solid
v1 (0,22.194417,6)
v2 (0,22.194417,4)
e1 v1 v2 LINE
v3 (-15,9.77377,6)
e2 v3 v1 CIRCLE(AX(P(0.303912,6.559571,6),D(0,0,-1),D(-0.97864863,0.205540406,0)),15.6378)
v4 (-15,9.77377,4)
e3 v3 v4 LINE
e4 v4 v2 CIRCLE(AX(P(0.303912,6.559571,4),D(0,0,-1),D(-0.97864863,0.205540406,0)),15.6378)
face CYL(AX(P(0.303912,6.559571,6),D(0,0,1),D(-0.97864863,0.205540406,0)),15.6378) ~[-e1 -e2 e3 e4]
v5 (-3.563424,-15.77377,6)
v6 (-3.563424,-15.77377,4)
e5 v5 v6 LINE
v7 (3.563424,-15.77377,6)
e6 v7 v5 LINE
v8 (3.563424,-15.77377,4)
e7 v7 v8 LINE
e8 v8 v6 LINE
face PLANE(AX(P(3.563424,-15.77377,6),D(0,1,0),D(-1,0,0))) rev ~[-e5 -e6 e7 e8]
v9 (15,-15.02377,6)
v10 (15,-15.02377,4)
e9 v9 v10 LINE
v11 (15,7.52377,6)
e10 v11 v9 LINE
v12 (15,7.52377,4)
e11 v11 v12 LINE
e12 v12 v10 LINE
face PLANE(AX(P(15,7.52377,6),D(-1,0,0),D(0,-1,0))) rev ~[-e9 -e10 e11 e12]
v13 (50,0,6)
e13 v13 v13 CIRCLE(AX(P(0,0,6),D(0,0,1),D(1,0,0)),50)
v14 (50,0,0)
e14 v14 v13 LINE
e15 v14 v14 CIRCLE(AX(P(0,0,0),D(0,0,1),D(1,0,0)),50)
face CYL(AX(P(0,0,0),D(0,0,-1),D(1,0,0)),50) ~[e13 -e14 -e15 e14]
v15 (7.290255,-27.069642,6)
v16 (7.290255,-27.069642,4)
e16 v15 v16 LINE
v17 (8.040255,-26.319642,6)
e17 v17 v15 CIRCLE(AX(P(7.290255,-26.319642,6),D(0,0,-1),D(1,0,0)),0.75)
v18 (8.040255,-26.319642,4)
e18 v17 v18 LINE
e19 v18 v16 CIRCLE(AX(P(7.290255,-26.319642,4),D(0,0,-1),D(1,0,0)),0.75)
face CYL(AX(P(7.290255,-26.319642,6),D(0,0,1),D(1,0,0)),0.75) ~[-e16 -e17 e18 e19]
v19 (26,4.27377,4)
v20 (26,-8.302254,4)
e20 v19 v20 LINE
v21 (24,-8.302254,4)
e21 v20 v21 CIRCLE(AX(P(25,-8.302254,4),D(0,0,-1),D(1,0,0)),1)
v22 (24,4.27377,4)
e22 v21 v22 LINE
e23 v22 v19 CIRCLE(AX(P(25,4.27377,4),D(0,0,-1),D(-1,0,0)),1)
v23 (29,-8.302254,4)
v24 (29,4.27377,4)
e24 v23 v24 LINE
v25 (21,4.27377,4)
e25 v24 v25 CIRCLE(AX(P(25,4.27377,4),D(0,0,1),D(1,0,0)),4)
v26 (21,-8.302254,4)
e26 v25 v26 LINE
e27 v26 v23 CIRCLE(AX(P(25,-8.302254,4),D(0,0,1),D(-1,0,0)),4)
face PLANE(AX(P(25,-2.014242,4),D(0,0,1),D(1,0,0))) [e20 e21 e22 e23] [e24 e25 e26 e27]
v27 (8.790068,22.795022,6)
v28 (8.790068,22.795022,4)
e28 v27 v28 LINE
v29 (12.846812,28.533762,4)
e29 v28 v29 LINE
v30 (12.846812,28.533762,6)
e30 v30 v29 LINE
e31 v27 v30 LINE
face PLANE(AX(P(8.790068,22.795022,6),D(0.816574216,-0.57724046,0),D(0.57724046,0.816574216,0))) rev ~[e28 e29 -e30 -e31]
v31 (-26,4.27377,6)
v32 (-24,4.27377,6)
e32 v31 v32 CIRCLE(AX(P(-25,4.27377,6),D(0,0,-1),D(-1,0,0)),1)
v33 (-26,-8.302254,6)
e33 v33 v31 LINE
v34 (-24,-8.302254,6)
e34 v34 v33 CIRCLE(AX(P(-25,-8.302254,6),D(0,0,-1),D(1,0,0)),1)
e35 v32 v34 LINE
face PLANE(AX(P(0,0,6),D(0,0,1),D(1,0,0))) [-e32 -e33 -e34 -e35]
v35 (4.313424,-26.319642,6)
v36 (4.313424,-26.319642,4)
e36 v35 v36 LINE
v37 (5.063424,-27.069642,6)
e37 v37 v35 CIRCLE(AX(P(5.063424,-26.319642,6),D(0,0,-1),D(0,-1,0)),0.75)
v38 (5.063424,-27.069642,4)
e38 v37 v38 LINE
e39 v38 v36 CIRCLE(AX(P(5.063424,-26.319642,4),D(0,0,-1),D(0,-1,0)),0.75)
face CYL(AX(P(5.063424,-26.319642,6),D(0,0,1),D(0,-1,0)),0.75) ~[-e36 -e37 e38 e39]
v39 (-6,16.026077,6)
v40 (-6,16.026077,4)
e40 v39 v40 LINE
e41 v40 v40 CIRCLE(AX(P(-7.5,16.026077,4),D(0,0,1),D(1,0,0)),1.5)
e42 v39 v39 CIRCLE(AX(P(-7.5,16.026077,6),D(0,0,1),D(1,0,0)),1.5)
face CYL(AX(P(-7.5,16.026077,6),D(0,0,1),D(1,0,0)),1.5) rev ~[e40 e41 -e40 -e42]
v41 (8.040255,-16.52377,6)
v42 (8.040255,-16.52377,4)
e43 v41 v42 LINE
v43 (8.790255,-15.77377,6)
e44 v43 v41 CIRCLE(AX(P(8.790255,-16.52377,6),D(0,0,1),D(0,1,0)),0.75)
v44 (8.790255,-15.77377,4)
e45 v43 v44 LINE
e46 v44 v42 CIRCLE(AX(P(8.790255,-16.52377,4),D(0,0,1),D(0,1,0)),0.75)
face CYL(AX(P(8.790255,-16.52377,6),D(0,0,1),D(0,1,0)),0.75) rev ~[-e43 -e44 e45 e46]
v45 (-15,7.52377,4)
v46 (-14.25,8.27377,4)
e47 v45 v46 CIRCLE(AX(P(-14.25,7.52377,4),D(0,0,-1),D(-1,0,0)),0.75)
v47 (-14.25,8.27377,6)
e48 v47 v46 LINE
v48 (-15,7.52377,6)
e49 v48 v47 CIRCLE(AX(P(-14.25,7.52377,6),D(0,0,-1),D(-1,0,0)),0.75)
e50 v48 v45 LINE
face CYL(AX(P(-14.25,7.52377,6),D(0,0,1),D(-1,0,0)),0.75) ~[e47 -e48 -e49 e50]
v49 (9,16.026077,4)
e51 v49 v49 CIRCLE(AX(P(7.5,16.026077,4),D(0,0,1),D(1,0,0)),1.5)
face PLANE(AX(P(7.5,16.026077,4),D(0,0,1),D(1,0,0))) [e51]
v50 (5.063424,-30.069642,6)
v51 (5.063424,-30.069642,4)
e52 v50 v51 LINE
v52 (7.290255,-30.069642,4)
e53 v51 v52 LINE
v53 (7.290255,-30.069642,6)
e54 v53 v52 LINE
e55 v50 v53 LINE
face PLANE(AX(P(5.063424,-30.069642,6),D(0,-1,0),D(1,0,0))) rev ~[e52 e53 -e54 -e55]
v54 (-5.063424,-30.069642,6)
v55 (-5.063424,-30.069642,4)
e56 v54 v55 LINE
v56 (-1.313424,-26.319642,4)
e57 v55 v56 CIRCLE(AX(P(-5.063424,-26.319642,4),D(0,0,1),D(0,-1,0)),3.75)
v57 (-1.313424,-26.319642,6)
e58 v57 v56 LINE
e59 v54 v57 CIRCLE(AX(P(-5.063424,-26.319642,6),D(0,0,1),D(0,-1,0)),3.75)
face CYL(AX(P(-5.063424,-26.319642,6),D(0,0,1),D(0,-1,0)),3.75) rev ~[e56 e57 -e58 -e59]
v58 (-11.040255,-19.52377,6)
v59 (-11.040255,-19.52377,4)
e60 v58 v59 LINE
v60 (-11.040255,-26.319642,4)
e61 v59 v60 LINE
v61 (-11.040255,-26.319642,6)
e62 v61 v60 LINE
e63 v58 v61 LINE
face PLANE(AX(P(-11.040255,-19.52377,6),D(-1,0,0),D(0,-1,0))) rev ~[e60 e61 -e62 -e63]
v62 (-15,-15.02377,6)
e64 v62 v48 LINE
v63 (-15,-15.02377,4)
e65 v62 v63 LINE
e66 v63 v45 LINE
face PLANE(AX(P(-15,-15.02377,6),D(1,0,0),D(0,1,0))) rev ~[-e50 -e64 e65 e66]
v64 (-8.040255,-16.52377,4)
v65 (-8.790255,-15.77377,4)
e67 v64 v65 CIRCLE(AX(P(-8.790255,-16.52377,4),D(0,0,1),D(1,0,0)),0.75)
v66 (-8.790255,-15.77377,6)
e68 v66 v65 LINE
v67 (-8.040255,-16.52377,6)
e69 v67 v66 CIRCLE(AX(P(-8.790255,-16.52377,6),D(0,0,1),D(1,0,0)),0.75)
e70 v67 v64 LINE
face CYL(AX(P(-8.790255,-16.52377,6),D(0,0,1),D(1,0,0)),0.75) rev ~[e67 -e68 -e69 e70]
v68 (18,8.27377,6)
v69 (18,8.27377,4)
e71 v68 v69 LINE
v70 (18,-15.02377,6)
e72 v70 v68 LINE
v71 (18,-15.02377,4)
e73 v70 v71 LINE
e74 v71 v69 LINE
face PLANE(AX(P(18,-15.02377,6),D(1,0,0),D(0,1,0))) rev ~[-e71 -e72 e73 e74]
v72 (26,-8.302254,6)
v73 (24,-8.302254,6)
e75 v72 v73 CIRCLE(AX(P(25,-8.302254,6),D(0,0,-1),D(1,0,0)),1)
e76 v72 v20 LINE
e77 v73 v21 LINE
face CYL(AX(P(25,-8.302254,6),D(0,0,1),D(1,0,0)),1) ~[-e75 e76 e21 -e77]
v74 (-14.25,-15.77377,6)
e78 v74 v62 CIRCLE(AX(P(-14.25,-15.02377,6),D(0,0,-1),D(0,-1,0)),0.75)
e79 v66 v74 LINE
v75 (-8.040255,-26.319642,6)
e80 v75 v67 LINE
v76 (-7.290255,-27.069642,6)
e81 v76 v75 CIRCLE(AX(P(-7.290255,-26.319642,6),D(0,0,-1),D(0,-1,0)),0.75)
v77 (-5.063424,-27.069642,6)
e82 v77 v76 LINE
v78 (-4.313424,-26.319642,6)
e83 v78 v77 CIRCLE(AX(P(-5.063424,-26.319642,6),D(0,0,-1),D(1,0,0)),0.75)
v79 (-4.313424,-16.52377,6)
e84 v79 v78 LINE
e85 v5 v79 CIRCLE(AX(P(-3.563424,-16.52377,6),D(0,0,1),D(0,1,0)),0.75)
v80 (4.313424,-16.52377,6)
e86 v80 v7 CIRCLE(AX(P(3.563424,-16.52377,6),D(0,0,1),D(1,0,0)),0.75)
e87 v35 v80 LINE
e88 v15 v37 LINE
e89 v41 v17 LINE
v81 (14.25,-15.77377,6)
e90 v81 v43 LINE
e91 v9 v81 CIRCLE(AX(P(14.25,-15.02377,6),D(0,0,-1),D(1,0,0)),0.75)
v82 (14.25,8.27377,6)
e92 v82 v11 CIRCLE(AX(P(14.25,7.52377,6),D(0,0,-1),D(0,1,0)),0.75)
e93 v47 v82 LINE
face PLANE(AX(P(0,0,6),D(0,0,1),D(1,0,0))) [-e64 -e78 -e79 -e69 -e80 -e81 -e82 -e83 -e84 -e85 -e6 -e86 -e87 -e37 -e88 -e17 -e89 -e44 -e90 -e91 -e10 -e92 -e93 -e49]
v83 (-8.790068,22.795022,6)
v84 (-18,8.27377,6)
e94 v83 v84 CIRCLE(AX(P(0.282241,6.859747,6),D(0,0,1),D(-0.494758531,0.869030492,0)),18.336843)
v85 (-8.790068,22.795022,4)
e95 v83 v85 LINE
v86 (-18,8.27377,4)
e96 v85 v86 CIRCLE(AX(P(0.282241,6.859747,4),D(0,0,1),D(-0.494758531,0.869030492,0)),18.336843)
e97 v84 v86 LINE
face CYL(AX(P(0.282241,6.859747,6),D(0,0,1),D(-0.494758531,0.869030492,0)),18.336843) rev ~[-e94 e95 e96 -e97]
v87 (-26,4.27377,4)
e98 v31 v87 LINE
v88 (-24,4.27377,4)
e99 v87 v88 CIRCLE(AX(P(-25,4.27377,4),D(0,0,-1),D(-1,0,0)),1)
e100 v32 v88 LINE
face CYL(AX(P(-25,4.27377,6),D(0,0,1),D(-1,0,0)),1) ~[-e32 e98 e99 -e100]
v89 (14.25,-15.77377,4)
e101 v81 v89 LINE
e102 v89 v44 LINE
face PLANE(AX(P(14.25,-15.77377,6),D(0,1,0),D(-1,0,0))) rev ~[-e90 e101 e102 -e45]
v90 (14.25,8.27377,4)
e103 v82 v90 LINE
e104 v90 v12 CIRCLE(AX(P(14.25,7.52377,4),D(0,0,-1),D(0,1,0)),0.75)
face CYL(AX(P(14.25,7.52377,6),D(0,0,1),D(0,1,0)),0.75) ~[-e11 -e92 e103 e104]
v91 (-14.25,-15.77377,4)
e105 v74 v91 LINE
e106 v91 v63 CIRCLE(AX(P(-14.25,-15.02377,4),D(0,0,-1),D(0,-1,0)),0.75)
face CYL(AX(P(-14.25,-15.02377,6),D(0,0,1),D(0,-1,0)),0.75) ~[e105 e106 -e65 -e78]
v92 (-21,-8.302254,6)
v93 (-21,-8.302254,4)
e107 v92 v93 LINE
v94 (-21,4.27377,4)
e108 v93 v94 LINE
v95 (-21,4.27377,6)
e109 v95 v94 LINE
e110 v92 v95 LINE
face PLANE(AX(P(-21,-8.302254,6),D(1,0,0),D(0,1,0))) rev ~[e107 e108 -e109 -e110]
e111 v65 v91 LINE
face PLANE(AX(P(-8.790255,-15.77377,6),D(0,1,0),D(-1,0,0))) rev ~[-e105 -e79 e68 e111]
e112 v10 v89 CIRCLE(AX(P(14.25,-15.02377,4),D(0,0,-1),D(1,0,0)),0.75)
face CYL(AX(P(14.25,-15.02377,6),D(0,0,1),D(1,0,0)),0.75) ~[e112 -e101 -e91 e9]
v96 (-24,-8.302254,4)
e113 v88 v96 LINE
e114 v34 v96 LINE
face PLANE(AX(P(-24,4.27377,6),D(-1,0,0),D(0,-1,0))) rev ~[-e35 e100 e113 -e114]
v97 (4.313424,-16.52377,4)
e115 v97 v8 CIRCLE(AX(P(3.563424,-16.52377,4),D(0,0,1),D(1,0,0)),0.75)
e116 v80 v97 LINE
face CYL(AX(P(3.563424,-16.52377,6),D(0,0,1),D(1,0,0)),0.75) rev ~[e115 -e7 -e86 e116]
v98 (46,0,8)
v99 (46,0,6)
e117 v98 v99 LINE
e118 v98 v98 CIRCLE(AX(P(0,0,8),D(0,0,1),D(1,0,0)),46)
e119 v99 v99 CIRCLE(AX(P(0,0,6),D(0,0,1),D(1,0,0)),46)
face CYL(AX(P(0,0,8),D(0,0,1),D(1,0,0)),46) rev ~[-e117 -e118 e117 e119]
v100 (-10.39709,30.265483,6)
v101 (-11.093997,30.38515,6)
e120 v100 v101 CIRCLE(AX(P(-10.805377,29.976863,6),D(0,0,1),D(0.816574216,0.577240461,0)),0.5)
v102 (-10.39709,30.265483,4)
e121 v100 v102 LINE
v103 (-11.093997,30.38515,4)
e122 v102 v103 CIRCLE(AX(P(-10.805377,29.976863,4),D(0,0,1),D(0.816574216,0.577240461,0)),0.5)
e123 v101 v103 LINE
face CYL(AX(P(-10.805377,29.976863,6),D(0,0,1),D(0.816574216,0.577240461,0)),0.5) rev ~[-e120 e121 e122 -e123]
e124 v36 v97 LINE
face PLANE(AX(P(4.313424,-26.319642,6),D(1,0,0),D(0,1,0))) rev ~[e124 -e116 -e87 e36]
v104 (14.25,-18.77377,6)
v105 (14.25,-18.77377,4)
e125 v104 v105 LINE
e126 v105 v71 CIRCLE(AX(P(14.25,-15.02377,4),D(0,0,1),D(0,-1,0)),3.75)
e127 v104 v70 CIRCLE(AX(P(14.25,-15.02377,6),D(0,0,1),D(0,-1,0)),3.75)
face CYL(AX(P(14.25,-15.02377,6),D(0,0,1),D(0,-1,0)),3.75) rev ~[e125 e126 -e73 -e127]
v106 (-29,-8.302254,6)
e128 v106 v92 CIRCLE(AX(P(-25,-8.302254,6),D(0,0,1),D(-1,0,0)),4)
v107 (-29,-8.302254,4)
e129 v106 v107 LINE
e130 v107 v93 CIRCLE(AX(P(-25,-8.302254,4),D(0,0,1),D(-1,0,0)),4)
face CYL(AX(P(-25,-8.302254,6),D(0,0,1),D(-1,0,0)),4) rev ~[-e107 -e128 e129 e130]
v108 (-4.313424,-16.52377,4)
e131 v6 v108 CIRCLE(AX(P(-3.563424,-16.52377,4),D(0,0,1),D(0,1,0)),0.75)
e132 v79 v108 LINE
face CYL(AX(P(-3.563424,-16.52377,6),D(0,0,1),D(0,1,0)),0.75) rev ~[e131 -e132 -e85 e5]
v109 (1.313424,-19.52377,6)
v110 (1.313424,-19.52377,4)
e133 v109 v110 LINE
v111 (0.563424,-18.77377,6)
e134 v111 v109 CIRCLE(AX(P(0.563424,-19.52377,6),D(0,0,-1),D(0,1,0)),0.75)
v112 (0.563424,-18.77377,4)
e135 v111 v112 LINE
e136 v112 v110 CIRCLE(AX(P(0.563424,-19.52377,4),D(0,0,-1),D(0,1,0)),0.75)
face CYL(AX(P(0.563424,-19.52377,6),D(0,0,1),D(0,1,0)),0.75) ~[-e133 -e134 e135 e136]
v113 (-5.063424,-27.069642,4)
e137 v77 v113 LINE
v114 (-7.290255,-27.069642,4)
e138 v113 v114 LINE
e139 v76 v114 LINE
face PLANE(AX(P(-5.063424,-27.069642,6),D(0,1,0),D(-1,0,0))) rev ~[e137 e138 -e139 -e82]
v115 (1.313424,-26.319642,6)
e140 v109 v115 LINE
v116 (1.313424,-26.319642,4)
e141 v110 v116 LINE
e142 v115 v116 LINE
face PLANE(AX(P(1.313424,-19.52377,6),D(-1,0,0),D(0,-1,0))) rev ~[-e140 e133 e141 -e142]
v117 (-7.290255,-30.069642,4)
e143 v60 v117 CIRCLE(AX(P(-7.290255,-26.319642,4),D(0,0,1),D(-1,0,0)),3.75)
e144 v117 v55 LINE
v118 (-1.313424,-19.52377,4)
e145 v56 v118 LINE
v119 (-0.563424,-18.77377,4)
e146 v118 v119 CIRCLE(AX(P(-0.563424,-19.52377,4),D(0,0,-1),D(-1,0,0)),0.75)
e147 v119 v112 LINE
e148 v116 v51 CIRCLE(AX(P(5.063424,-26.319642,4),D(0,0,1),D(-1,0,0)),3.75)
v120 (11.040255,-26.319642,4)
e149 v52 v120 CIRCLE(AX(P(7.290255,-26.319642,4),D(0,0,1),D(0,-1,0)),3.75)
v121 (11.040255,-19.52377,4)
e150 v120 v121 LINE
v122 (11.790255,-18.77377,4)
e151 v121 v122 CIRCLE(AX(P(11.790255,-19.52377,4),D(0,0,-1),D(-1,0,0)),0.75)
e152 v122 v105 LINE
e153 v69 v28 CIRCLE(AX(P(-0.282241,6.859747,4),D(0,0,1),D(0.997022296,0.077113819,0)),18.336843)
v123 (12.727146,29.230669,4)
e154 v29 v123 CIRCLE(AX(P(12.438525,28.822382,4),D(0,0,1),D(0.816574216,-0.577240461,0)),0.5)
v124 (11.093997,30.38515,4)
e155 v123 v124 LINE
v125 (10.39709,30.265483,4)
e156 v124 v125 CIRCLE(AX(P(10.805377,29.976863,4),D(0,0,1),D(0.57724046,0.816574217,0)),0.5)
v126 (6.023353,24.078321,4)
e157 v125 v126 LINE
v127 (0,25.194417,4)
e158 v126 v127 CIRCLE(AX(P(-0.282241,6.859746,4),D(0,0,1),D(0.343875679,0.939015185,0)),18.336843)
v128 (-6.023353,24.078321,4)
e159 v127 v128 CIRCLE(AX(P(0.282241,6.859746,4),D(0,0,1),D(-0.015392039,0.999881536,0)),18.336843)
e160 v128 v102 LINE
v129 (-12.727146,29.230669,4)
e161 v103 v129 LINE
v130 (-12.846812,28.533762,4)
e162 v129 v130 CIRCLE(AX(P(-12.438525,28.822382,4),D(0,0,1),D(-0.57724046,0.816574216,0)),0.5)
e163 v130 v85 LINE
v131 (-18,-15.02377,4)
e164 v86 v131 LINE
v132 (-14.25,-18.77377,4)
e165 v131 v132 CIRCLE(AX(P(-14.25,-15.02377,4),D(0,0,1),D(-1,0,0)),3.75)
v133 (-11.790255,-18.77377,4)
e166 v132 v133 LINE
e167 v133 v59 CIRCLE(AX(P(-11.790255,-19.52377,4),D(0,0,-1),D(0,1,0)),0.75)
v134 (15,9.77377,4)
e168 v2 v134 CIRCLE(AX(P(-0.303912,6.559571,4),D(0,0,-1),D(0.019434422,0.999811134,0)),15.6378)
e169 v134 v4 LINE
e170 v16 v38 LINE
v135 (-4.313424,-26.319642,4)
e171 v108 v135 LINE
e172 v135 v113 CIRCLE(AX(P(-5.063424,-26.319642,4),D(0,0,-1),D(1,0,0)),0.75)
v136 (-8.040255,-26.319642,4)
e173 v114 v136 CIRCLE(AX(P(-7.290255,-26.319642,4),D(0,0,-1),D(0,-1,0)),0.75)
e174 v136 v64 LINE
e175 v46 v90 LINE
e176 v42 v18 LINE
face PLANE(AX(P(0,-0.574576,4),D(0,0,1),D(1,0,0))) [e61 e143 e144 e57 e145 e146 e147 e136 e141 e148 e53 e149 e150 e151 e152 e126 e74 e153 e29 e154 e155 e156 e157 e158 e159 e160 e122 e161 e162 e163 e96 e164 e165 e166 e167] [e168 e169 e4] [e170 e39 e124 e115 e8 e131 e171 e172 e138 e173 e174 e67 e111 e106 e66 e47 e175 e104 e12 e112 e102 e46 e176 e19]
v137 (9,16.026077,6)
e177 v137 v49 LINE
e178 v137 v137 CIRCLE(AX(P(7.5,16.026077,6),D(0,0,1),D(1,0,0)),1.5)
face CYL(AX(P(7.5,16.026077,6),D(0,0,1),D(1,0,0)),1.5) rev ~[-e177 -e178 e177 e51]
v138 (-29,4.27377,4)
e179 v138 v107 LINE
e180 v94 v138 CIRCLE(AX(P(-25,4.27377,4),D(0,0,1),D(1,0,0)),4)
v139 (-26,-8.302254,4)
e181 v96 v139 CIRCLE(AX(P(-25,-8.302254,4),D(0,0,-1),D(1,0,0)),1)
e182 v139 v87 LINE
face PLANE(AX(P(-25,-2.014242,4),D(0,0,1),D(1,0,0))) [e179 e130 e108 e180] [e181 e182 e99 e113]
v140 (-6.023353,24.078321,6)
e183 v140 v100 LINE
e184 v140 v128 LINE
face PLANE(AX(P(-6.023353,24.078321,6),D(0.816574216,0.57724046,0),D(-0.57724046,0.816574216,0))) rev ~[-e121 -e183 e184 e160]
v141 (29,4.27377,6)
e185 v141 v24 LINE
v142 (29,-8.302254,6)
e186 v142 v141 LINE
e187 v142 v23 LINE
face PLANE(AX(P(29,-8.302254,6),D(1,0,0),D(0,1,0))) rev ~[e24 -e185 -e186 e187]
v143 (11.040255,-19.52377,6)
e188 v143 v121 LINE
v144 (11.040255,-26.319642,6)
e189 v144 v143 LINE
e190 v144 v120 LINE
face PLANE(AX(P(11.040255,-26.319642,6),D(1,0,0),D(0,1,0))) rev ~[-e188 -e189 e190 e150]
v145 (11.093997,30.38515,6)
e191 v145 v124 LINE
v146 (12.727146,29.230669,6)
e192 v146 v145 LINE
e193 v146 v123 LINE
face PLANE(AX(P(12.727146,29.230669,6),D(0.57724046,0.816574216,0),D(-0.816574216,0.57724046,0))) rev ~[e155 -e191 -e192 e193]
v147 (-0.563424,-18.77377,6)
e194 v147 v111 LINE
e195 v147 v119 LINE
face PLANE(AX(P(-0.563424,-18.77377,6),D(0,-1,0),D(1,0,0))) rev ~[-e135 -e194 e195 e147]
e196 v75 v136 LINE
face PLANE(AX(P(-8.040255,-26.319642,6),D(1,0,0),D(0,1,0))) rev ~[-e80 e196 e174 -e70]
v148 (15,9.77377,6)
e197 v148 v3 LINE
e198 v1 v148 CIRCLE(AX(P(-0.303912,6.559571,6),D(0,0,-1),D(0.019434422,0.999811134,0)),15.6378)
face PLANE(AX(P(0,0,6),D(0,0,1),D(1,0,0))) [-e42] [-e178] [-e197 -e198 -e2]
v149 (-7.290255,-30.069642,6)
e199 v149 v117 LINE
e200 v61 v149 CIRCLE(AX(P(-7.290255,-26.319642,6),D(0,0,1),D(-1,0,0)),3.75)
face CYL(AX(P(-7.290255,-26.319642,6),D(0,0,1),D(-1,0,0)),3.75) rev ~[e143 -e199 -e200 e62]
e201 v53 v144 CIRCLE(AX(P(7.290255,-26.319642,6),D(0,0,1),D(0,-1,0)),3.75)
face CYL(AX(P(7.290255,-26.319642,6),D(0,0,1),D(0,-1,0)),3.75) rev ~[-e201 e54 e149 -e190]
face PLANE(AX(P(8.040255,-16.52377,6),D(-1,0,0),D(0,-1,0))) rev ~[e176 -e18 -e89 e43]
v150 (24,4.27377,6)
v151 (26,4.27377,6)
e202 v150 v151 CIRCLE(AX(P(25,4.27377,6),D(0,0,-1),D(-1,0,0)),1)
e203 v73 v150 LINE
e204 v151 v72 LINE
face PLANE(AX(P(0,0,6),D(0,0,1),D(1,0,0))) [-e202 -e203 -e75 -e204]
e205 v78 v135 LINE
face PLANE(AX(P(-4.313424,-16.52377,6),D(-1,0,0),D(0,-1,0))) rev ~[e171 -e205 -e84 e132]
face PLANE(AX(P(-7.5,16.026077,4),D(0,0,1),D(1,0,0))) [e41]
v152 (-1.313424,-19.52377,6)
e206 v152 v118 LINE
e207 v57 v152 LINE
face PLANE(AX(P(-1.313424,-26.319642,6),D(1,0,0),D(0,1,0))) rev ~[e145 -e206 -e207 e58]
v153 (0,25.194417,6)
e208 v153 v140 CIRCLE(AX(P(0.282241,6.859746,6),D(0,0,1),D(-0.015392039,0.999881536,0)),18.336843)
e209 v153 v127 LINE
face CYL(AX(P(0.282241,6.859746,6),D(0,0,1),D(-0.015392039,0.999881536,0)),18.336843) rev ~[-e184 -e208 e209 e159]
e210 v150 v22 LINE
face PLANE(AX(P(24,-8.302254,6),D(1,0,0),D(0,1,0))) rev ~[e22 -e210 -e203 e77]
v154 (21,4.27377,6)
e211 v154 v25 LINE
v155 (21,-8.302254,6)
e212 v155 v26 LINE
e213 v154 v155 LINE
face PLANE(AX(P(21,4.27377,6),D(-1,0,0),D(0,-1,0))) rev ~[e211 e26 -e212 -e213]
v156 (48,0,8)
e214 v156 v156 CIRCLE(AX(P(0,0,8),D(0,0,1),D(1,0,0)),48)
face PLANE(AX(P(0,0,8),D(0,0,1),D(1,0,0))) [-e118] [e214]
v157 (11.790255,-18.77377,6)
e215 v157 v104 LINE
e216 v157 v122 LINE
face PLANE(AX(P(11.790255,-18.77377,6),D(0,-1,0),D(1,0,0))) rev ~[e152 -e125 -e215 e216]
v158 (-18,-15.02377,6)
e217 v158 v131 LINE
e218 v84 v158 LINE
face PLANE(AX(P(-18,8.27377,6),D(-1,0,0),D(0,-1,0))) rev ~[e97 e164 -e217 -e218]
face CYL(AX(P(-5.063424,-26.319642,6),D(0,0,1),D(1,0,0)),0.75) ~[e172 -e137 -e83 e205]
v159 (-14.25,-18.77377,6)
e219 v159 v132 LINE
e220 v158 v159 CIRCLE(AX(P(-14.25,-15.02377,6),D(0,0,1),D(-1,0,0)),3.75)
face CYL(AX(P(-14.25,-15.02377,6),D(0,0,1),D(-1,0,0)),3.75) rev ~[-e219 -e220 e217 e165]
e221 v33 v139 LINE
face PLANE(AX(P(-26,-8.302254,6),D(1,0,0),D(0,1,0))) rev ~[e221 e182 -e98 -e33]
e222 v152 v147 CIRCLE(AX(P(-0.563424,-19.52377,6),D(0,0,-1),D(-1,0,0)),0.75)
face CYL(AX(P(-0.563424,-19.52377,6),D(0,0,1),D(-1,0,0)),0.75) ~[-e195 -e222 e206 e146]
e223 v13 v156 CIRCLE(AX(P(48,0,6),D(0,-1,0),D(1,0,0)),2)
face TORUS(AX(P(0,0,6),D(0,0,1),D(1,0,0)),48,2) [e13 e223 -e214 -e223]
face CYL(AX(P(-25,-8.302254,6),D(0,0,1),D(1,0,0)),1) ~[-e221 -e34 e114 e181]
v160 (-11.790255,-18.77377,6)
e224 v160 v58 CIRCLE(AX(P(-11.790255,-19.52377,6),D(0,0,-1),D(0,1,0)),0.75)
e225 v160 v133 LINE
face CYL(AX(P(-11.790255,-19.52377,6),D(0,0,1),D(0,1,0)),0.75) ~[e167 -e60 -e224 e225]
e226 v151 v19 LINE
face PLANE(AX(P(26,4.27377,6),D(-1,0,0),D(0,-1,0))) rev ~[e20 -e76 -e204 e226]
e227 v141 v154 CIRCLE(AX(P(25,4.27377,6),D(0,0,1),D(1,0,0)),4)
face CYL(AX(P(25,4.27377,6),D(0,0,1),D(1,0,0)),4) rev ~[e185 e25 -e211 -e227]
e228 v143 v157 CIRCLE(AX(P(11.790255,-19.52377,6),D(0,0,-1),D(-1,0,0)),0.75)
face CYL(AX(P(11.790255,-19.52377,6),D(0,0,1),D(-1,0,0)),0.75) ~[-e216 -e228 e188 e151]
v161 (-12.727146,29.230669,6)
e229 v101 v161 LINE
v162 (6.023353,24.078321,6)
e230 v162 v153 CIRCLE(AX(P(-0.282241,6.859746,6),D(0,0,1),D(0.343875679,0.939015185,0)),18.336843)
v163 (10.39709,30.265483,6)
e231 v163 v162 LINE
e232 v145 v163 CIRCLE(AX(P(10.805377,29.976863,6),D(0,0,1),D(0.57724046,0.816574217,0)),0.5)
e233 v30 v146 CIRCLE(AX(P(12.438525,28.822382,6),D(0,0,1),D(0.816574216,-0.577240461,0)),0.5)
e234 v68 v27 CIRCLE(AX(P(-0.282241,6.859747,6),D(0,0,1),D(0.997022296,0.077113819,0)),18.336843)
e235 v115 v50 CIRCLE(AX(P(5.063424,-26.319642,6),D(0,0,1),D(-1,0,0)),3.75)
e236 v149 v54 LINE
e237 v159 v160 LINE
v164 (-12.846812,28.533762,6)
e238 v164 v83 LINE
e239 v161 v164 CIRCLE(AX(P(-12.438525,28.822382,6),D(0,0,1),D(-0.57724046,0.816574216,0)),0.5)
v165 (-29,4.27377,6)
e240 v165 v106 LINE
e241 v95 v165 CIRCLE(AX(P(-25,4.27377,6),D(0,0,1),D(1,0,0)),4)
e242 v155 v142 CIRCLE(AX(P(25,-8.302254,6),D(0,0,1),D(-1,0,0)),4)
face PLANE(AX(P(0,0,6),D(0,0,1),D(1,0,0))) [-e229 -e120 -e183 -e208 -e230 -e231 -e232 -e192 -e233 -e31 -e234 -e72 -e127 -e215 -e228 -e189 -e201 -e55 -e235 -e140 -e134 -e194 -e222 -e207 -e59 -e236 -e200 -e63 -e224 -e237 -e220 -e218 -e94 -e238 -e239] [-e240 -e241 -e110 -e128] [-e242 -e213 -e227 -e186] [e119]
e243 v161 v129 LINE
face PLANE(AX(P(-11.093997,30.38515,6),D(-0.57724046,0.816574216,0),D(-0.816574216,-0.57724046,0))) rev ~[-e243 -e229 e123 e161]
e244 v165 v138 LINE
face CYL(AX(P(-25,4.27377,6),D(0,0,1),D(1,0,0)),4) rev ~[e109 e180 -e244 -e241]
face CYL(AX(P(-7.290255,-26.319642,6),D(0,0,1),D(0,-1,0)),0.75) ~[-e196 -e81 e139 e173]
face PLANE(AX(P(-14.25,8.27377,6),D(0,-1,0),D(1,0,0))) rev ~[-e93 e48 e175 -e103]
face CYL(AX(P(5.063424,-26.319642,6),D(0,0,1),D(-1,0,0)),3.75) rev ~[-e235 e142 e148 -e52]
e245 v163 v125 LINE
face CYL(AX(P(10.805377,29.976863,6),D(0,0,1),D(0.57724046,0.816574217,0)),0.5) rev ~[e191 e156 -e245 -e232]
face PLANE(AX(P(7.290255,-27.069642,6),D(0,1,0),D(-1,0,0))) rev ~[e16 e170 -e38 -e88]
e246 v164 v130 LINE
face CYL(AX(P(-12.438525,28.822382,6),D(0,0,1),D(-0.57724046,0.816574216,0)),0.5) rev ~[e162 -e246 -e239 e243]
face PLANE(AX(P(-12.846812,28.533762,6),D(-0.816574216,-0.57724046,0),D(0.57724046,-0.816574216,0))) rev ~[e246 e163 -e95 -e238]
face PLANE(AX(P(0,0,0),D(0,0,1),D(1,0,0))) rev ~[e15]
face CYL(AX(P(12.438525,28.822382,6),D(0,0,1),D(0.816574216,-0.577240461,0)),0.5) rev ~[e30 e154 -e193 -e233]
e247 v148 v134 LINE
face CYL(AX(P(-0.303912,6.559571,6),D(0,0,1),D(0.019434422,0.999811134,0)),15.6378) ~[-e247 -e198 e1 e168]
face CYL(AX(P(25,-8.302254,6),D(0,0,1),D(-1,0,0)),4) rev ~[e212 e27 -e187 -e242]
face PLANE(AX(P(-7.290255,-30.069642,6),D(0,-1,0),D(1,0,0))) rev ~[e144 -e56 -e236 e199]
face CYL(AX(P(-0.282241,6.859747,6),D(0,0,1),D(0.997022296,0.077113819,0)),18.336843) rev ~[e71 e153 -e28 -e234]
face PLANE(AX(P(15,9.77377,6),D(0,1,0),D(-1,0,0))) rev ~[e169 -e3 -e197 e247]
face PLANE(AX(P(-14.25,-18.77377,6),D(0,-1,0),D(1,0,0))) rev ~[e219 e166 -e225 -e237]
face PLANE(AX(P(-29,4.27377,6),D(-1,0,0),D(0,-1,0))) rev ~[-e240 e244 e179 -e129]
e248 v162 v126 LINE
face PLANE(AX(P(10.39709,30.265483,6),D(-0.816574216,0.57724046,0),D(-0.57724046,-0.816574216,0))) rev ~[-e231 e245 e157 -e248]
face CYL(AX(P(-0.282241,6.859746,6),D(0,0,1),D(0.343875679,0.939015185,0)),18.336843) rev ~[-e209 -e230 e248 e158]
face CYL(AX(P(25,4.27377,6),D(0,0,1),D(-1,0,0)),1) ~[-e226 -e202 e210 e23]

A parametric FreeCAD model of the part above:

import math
import FreeCAD as App
import Part
import Sketcher


def edges_at(feature, points):
    """Names of the edges that pass closest to the given points."""
    edges = feature.Shape.Edges
    near = lambda p: min(range(len(edges)), key=lambda i: edges[i].distToShape(Part.Vertex(*p))[0])
    return sorted({f"Edge{near(p) + 1}" for p in points})

doc = App.newDocument("Part")
body = doc.addObject("PartDesign::Body", "Body")

# Sketch on XY plane
sketch1 = doc.addObject("Sketcher::SketchObject", "Sketch")
body.addObject(sketch1)
sketch1.AttachmentSupport = (doc.XY_Plane, [""])
sketch1.MapMode = "FlatFace"
sketch1.addGeometry(Part.Circle(App.Vector(0, 0, 0), App.Vector(0, 0, 1), 50), False)
sketch1.addConstraint([
    Sketcher.Constraint("Coincident", 0, 3, -1, 1),
    Sketcher.Constraint("Diameter", 0, 100.0),
])
pad1 = doc.addObject("PartDesign::Pad", "Pad")
body.addObject(pad1)
pad1.Profile = sketch1
pad1.Length = 8
doc.recompute()

fillet = doc.addObject("PartDesign::Fillet", "Fillet")
body.addObject(fillet)
fillet.Base = (pad1, edges_at(pad1, [(-50, 0, 8)]))
fillet.Radius = 2

# Sketch on XY plane
sketch2 = doc.addObject("Sketcher::SketchObject", "Sketch001")
body.addObject(sketch2)
sketch2.AttachmentSupport = (doc.XY_Plane, [""])
sketch2.MapMode = "FlatFace"
sketch2.AttachmentOffset = App.Placement(App.Vector(0, 0, 8), App.Rotation())
sketch2.addGeometry(Part.Circle(App.Vector(0, 0, 0), App.Vector(0, 0, 1), 46), False)
sketch2.addConstraint([
    Sketcher.Constraint("Coincident", 0, 3, -1, 1),
    Sketcher.Constraint("Diameter", 0, 92.0),
])
pocket1 = doc.addObject("PartDesign::Pocket", "Pocket")
body.addObject(pocket1)
pocket1.Profile = sketch2
pocket1.Length = 2

# Sketch on XY plane
sketch3 = doc.addObject("Sketcher::SketchObject", "Sketch002")
body.addObject(sketch3)
sketch3.AttachmentSupport = (doc.XY_Plane, [""])
sketch3.MapMode = "FlatFace"
sketch3.AttachmentOffset = App.Placement(App.Vector(0, 0, 6), App.Rotation())
sketch3.addGeometry([
    Part.ArcOfCircle(Part.Circle(App.Vector(-0.6, -19.5, 0), App.Vector(0, 0, 1), 0.8), math.radians(90), math.radians(180)),  # 0
    Part.LineSegment(App.Vector(-0.6, -18.8, 0), App.Vector(0.6, -18.8, 0)),  # 1
    Part.ArcOfCircle(Part.Circle(App.Vector(0.6, -19.5, 0), App.Vector(0, 0, 1), 0.8), math.radians(0), math.radians(90)),  # 2
    Part.LineSegment(App.Vector(1.3, -19.5, 0), App.Vector(1.3, -26.3, 0)),  # 3
    Part.ArcOfCircle(Part.Circle(App.Vector(5.1, -26.3, 0), App.Vector(0, 0, 1), 3.8), math.radians(180), math.radians(270)),  # 4
    Part.LineSegment(App.Vector(5.1, -30.1, 0), App.Vector(7.3, -30.1, 0)),  # 5
    Part.ArcOfCircle(Part.Circle(App.Vector(7.3, -26.3, 0), App.Vector(0, 0, 1), 3.8), math.radians(-90), math.radians(0)),  # 6
    Part.LineSegment(App.Vector(11, -26.3, 0), App.Vector(11, -19.5, 0)),  # 7
    Part.ArcOfCircle(Part.Circle(App.Vector(11.8, -19.5, 0), App.Vector(0, 0, 1), 0.8), math.radians(90), math.radians(180)),  # 8
    Part.LineSegment(App.Vector(11.8, -18.8, 0), App.Vector(14.2, -18.8, 0)),  # 9
    Part.ArcOfCircle(Part.Circle(App.Vector(14.2, -15, 0), App.Vector(0, 0, 1), 3.8), math.radians(-90), math.radians(0)),  # 10
    Part.LineSegment(App.Vector(18, -15, 0), App.Vector(18, 8.3, 0)),  # 11
    Part.ArcOfCircle(Part.Circle(App.Vector(-0.3, 6.9, 0), App.Vector(0, 0, 1), 18.3), math.radians(4), math.radians(60)),  # 12
    Part.LineSegment(App.Vector(8.8, 22.8, 0), App.Vector(12.8, 28.5, 0)),  # 13
    Part.ArcOfCircle(Part.Circle(App.Vector(12.4, 28.8, 0), App.Vector(0, 0, 1), 0.5), math.radians(-35), math.radians(55)),  # 14
    Part.LineSegment(App.Vector(12.7, 29.2, 0), App.Vector(11.1, 30.4, 0)),  # 15
    Part.ArcOfCircle(Part.Circle(App.Vector(10.8, 30, 0), App.Vector(0, 0, 1), 0.5), math.radians(55), math.radians(145)),  # 16
    Part.LineSegment(App.Vector(10.4, 30.3, 0), App.Vector(6, 24.1, 0)),  # 17
    Part.ArcOfCircle(Part.Circle(App.Vector(-0.3, 6.9, 0), App.Vector(0, 0, 1), 18.3), math.radians(69.89), math.radians(89.12)),  # 18
    Part.ArcOfCircle(Part.Circle(App.Vector(0.3, 6.9, 0), App.Vector(0, 0, 1), 18.3), math.radians(90.88), math.radians(110.11)),  # 19
    Part.LineSegment(App.Vector(-6, 24.1, 0), App.Vector(-10.4, 30.3, 0)),  # 20
    Part.ArcOfCircle(Part.Circle(App.Vector(-10.8, 30, 0), App.Vector(0, 0, 1), 0.5), math.radians(35), math.radians(125)),  # 21
    Part.LineSegment(App.Vector(-11.1, 30.4, 0), App.Vector(-12.7, 29.2, 0)),  # 22
    Part.ArcOfCircle(Part.Circle(App.Vector(-12.4, 28.8, 0), App.Vector(0, 0, 1), 0.5), math.radians(125), math.radians(215)),  # 23
    Part.LineSegment(App.Vector(-12.8, 28.5, 0), App.Vector(-8.8, 22.8, 0)),  # 24
    Part.ArcOfCircle(Part.Circle(App.Vector(0.3, 6.9, 0), App.Vector(0, 0, 1), 18.3), math.radians(120), math.radians(176)),  # 25
    Part.LineSegment(App.Vector(-18, 8.3, 0), App.Vector(-18, -15, 0)),  # 26
    Part.ArcOfCircle(Part.Circle(App.Vector(-14.2, -15, 0), App.Vector(0, 0, 1), 3.8), math.radians(180), math.radians(270)),  # 27
    Part.LineSegment(App.Vector(-14.2, -18.8, 0), App.Vector(-11.8, -18.8, 0)),  # 28
    Part.ArcOfCircle(Part.Circle(App.Vector(-11.8, -19.5, 0), App.Vector(0, 0, 1), 0.8), math.radians(0), math.radians(90)),  # 29
    Part.LineSegment(App.Vector(-11, -19.5, 0), App.Vector(-11, -26.3, 0)),  # 30
    Part.ArcOfCircle(Part.Circle(App.Vector(-7.3, -26.3, 0), App.Vector(0, 0, 1), 3.8), math.radians(180), math.radians(270)),  # 31
    Part.LineSegment(App.Vector(-7.3, -30.1, 0), App.Vector(-5.1, -30.1, 0)),  # 32
    Part.ArcOfCircle(Part.Circle(App.Vector(-5.1, -26.3, 0), App.Vector(0, 0, 1), 3.8), math.radians(-90), math.radians(0)),  # 33
    Part.LineSegment(App.Vector(-1.3, -26.3, 0), App.Vector(-1.3, -19.5, 0)),  # 34
    Part.ArcOfCircle(Part.Circle(App.Vector(-14.2, 7.5, 0), App.Vector(0, 0, 1), 0.8), math.radians(90), math.radians(180)),  # 35
    Part.LineSegment(App.Vector(-14.2, 8.3, 0), App.Vector(14.2, 8.3, 0)),  # 36
    Part.ArcOfCircle(Part.Circle(App.Vector(14.2, 7.5, 0), App.Vector(0, 0, 1), 0.8), math.radians(0), math.radians(90)),  # 37
    Part.LineSegment(App.Vector(15, 7.5, 0), App.Vector(15, -15, 0)),  # 38
    Part.ArcOfCircle(Part.Circle(App.Vector(14.2, -15, 0), App.Vector(0, 0, 1), 0.8), math.radians(-90), math.radians(0)),  # 39
    Part.LineSegment(App.Vector(14.2, -15.8, 0), App.Vector(8.8, -15.8, 0)),  # 40
    Part.ArcOfCircle(Part.Circle(App.Vector(8.8, -16.5, 0), App.Vector(0, 0, 1), 0.8), math.radians(90), math.radians(180)),  # 41
    Part.LineSegment(App.Vector(8, -16.5, 0), App.Vector(8, -26.3, 0)),  # 42
    Part.ArcOfCircle(Part.Circle(App.Vector(7.3, -26.3, 0), App.Vector(0, 0, 1), 0.8), math.radians(-90), math.radians(0)),  # 43
    Part.LineSegment(App.Vector(7.3, -27.1, 0), App.Vector(5.1, -27.1, 0)),  # 44
    Part.ArcOfCircle(Part.Circle(App.Vector(5.1, -26.3, 0), App.Vector(0, 0, 1), 0.8), math.radians(180), math.radians(270)),  # 45
    Part.LineSegment(App.Vector(4.3, -26.3, 0), App.Vector(4.3, -16.5, 0)),  # 46
    Part.ArcOfCircle(Part.Circle(App.Vector(3.6, -16.5, 0), App.Vector(0, 0, 1), 0.8), math.radians(0), math.radians(90)),  # 47
    Part.LineSegment(App.Vector(3.6, -15.8, 0), App.Vector(-3.6, -15.8, 0)),  # 48
    Part.ArcOfCircle(Part.Circle(App.Vector(-3.6, -16.5, 0), App.Vector(0, 0, 1), 0.8), math.radians(90), math.radians(180)),  # 49
    Part.LineSegment(App.Vector(-4.3, -16.5, 0), App.Vector(-4.3, -26.3, 0)),  # 50
    Part.ArcOfCircle(Part.Circle(App.Vector(-5.1, -26.3, 0), App.Vector(0, 0, 1), 0.8), math.radians(-90), math.radians(0)),  # 51
    Part.LineSegment(App.Vector(-5.1, -27.1, 0), App.Vector(-7.3, -27.1, 0)),  # 52
    Part.ArcOfCircle(Part.Circle(App.Vector(-7.3, -26.3, 0), App.Vector(0, 0, 1), 0.8), math.radians(180), math.radians(270)),  # 53
    Part.LineSegment(App.Vector(-8, -26.3, 0), App.Vector(-8, -16.5, 0)),  # 54
    Part.ArcOfCircle(Part.Circle(App.Vector(-8.8, -16.5, 0), App.Vector(0, 0, 1), 0.8), math.radians(0), math.radians(90)),  # 55
    Part.LineSegment(App.Vector(-8.8, -15.8, 0), App.Vector(-14.2, -15.8, 0)),  # 56
    Part.ArcOfCircle(Part.Circle(App.Vector(-14.2, -15, 0), App.Vector(0, 0, 1), 0.8), math.radians(180), math.radians(270)),  # 57
    Part.LineSegment(App.Vector(-15, -15, 0), App.Vector(-15, 7.5, 0)),  # 58
    Part.ArcOfCircle(Part.Circle(App.Vector(-0.3, 6.6, 0), App.Vector(0, 0, 1), 15.6), math.radians(12), math.radians(89)),  # 59
    Part.LineSegment(App.Vector(15, 9.8, 0), App.Vector(-15, 9.8, 0)),  # 60
    Part.ArcOfCircle(Part.Circle(App.Vector(0.3, 6.6, 0), App.Vector(0, 0, 1), 15.6), math.radians(91), math.radians(168)),  # 61
    Part.LineSegment(App.Vector(-21, -8.3, 0), App.Vector(-21, 4.3, 0)),  # 62
    Part.ArcOfCircle(Part.Circle(App.Vector(-25, 4.3, 0), App.Vector(0, 0, 1), 4), math.radians(0), math.radians(180)),  # 63
    Part.LineSegment(App.Vector(-29, 4.3, 0), App.Vector(-29, -8.3, 0)),  # 64
    Part.ArcOfCircle(Part.Circle(App.Vector(-25, -8.3, 0), App.Vector(0, 0, 1), 4), math.radians(180), math.radians(360)),  # 65
    Part.ArcOfCircle(Part.Circle(App.Vector(-25, -8.3, 0), App.Vector(0, 0, 1), 1), math.radians(180), math.radians(360)),  # 66
    Part.LineSegment(App.Vector(-26, -8.3, 0), App.Vector(-26, 4.3, 0)),  # 67
    Part.ArcOfCircle(Part.Circle(App.Vector(-25, 4.3, 0), App.Vector(0, 0, 1), 1), math.radians(0), math.radians(180)),  # 68
    Part.LineSegment(App.Vector(-24, 4.3, 0), App.Vector(-24, -8.3, 0)),  # 69
    Part.ArcOfCircle(Part.Circle(App.Vector(25, -8.3, 0), App.Vector(0, 0, 1), 4), math.radians(180), math.radians(360)),  # 70
    Part.LineSegment(App.Vector(29, -8.3, 0), App.Vector(29, 4.3, 0)),  # 71
    Part.ArcOfCircle(Part.Circle(App.Vector(25, 4.3, 0), App.Vector(0, 0, 1), 4), math.radians(0), math.radians(180)),  # 72
    Part.LineSegment(App.Vector(21, 4.3, 0), App.Vector(21, -8.3, 0)),  # 73
    Part.ArcOfCircle(Part.Circle(App.Vector(25, 4.3, 0), App.Vector(0, 0, 1), 1), math.radians(0), math.radians(180)),  # 74
    Part.LineSegment(App.Vector(26, 4.3, 0), App.Vector(26, -8.3, 0)),  # 75
    Part.ArcOfCircle(Part.Circle(App.Vector(25, -8.3, 0), App.Vector(0, 0, 1), 1), math.radians(180), math.radians(360)),  # 76
    Part.LineSegment(App.Vector(24, -8.3, 0), App.Vector(24, 4.3, 0)),  # 77
], False)
sketch3.addConstraint([
    Sketcher.Constraint("Tangent", 0, 1, 1, 1),
    Sketcher.Constraint("Tangent", 1, 2, 2, 2),
    Sketcher.Constraint("Tangent", 2, 1, 3, 1),
    Sketcher.Constraint("Tangent", 3, 2, 4, 1),
    Sketcher.Constraint("Tangent", 4, 2, 5, 1),
    Sketcher.Constraint("Tangent", 5, 2, 6, 1),
    Sketcher.Constraint("Tangent", 6, 2, 7, 1),
    Sketcher.Constraint("Tangent", 7, 2, 8, 2),
    Sketcher.Constraint("Tangent", 8, 1, 9, 1),
    Sketcher.Constraint("Tangent", 9, 2, 10, 1),
    Sketcher.Constraint("Tangent", 10, 2, 11, 1),
    Sketcher.Constraint("Coincident", 11, 2, 12, 1),
    Sketcher.Constraint("Coincident", 12, 2, 13, 1),
    Sketcher.Constraint("Tangent", 13, 2, 14, 1),
    Sketcher.Constraint("Tangent", 14, 2, 15, 1),
    Sketcher.Constraint("Tangent", 15, 2, 16, 1),
    Sketcher.Constraint("Tangent", 16, 2, 17, 1),
    Sketcher.Constraint("Coincident", 17, 2, 18, 1),
    Sketcher.Constraint("Coincident", 18, 2, 19, 1),
    Sketcher.Constraint("Coincident", 19, 2, 20, 1),
    Sketcher.Constraint("Tangent", 20, 2, 21, 1),
    Sketcher.Constraint("Tangent", 21, 2, 22, 1),
    Sketcher.Constraint("Tangent", 22, 2, 23, 1),
    Sketcher.Constraint("Tangent", 23, 2, 24, 1),
    Sketcher.Constraint("Coincident", 24, 2, 25, 1),
    Sketcher.Constraint("Coincident", 25, 2, 26, 1),
    Sketcher.Constraint("Tangent", 26, 2, 27, 1),
    Sketcher.Constraint("Tangent", 27, 2, 28, 1),
    Sketcher.Constraint("Tangent", 28, 2, 29, 2),
    Sketcher.Constraint("Tangent", 29, 1, 30, 1),
    Sketcher.Constraint("Tangent", 30, 2, 31, 1),
    Sketcher.Constraint("Tangent", 31, 2, 32, 1),
    Sketcher.Constraint("Tangent", 32, 2, 33, 1),
    Sketcher.Constraint("Tangent", 33, 2, 34, 1),
    Sketcher.Constraint("Tangent", 34, 2, 0, 2),
    Sketcher.Constraint("Tangent", 35, 1, 36, 1),
    Sketcher.Constraint("Tangent", 36, 2, 37, 2),
    Sketcher.Constraint("Tangent", 37, 1, 38, 1),
    Sketcher.Constraint("Tangent", 38, 2, 39, 2),
    Sketcher.Constraint("Tangent", 39, 1, 40, 1),
    Sketcher.Constraint("Tangent", 40, 2, 41, 1),
    Sketcher.Constraint("Tangent", 41, 2, 42, 1),
    Sketcher.Constraint("Tangent", 42, 2, 43, 2),
    Sketcher.Constraint("Tangent", 43, 1, 44, 1),
    Sketcher.Constraint("Tangent", 44, 2, 45, 2),
    Sketcher.Constraint("Tangent", 45, 1, 46, 1),
    Sketcher.Constraint("Tangent", 46, 2, 47, 1),
    Sketcher.Constraint("Tangent", 47, 2, 48, 1),
    Sketcher.Constraint("Tangent", 48, 2, 49, 1),
    Sketcher.Constraint("Tangent", 49, 2, 50, 1),
    Sketcher.Constraint("Tangent", 50, 2, 51, 2),
    Sketcher.Constraint("Tangent", 51, 1, 52, 1),
    Sketcher.Constraint("Tangent", 52, 2, 53, 2),
    Sketcher.Constraint("Tangent", 53, 1, 54, 1),
    Sketcher.Constraint("Tangent", 54, 2, 55, 1),
    Sketcher.Constraint("Tangent", 55, 2, 56, 1),
    Sketcher.Constraint("Tangent", 56, 2, 57, 2),
    Sketcher.Constraint("Tangent", 57, 1, 58, 1),
    Sketcher.Constraint("Tangent", 58, 2, 35, 2),
    Sketcher.Constraint("Coincident", 59, 1, 60, 1),
    Sketcher.Constraint("Coincident", 60, 2, 61, 2),
    Sketcher.Constraint("Coincident", 61, 1, 59, 2),
    Sketcher.Constraint("Tangent", 62, 2, 63, 1),
    Sketcher.Constraint("Tangent", 63, 2, 64, 1),
    Sketcher.Constraint("Tangent", 64, 2, 65, 1),
    Sketcher.Constraint("Tangent", 65, 2, 62, 1),
    Sketcher.Constraint("Tangent", 66, 1, 67, 1),
    Sketcher.Constraint("Tangent", 67, 2, 68, 2),
    Sketcher.Constraint("Tangent", 68, 1, 69, 1),
    Sketcher.Constraint("Tangent", 69, 2, 66, 2),
    Sketcher.Constraint("Tangent", 70, 2, 71, 1),
    Sketcher.Constraint("Tangent", 71, 2, 72, 1),
    Sketcher.Constraint("Tangent", 72, 2, 73, 1),
    Sketcher.Constraint("Tangent", 73, 2, 70, 1),
    Sketcher.Constraint("Tangent", 74, 1, 75, 1),
    Sketcher.Constraint("Tangent", 75, 2, 76, 2),
    Sketcher.Constraint("Tangent", 76, 1, 77, 1),
    Sketcher.Constraint("Tangent", 77, 2, 74, 2),
    Sketcher.Constraint("Horizontal", 1),
    Sketcher.Constraint("Vertical", 3),
    Sketcher.Constraint("Horizontal", 5),
    Sketcher.Constraint("Vertical", 7),
    Sketcher.Constraint("Horizontal", 9),
    Sketcher.Constraint("Vertical", 11),
    Sketcher.Constraint("Vertical", 26),
    Sketcher.Constraint("Horizontal", 28),
    Sketcher.Constraint("Vertical", 30),
    Sketcher.Constraint("Horizontal", 32),
    Sketcher.Constraint("Vertical", 34),
    Sketcher.Constraint("Horizontal", 36),
    Sketcher.Constraint("Vertical", 38),
    Sketcher.Constraint("Horizontal", 40),
    Sketcher.Constraint("Vertical", 42),
    Sketcher.Constraint("Horizontal", 44),
    Sketcher.Constraint("Vertical", 46),
    Sketcher.Constraint("Horizontal", 48),
    Sketcher.Constraint("Vertical", 50),
    Sketcher.Constraint("Horizontal", 52),
    Sketcher.Constraint("Vertical", 54),
    Sketcher.Constraint("Horizontal", 56),
    Sketcher.Constraint("Vertical", 58),
    Sketcher.Constraint("Horizontal", 60),
    Sketcher.Constraint("Vertical", 62),
    Sketcher.Constraint("Vertical", 64),
    Sketcher.Constraint("Vertical", 67),
    Sketcher.Constraint("Vertical", 69),
    Sketcher.Constraint("Vertical", 71),
    Sketcher.Constraint("Vertical", 73),
    Sketcher.Constraint("Vertical", 75),
    Sketcher.Constraint("Vertical", 77),
    Sketcher.Constraint("Coincident", 18, 3, 12, 3),
    Sketcher.Constraint("Coincident", 25, 3, 19, 3),
    Sketcher.Constraint("Coincident", 39, 3, 10, 3),
    Sketcher.Constraint("Coincident", 43, 3, 6, 3),
    Sketcher.Constraint("Coincident", 45, 3, 4, 3),
    Sketcher.Constraint("Coincident", 51, 3, 33, 3),
    Sketcher.Constraint("Coincident", 53, 3, 31, 3),
    Sketcher.Constraint("Coincident", 57, 3, 27, 3),
    Sketcher.Constraint("Coincident", 66, 3, 65, 3),
    Sketcher.Constraint("Coincident", 74, 3, 72, 3),
    Sketcher.Constraint("Equal", 0, 2),
    Sketcher.Constraint("Equal", 4, 6),
    Sketcher.Constraint("Equal", 2, 8),
    Sketcher.Constraint("Equal", 6, 10),
    Sketcher.Constraint("Equal", 14, 16),
    Sketcher.Constraint("Equal", 12, 18),
    Sketcher.Constraint("Equal", 18, 19),
    Sketcher.Constraint("Equal", 16, 21),
    Sketcher.Constraint("Equal", 21, 23),
    Sketcher.Constraint("Equal", 19, 25),
    Sketcher.Constraint("Equal", 10, 27),
    Sketcher.Constraint("Equal", 8, 29),
    Sketcher.Constraint("Equal", 27, 31),
    Sketcher.Constraint("Equal", 31, 33),
    Sketcher.Constraint("Equal", 29, 35),
    Sketcher.Constraint("Equal", 35, 37),
    Sketcher.Constraint("Equal", 37, 39),
    Sketcher.Constraint("Equal", 39, 41),
    Sketcher.Constraint("Equal", 41, 43),
    Sketcher.Constraint("Equal", 45, 47),
    Sketcher.Constraint("Equal", 47, 49),
    Sketcher.Constraint("Equal", 49, 51),
    Sketcher.Constraint("Equal", 53, 55),
    Sketcher.Constraint("Equal", 55, 57),
    Sketcher.Constraint("Equal", 59, 61),
    Sketcher.Constraint("Equal", 65, 70),
    Sketcher.Constraint("Equal", 68, 74),
    Sketcher.Constraint("Symmetric", 12, 3, 19, 3, -2),
    Sketcher.Constraint("Symmetric", 16, 3, 21, 3, -2),
    Sketcher.Constraint("Symmetric", 14, 3, 23, 3, -2),
    Sketcher.Constraint("Symmetric", 10, 3, 27, 3, -2),
    Sketcher.Constraint("Symmetric", 6, 3, 31, 3, -2),
    Sketcher.Constraint("Symmetric", 59, 3, 61, 3, -2),
    Sketcher.Constraint("Symmetric", 65, 3, 70, 3, -2),
    Sketcher.Constraint("Perpendicular", 13, 15),
    Sketcher.Constraint("Perpendicular", 15, 17),
    Sketcher.Constraint("Perpendicular", 20, 22),
    Sketcher.Constraint("Perpendicular", 22, 24),
    Sketcher.Constraint("Horizontal", 2, 3, 8, 3),
    Sketcher.Constraint("Horizontal", 41, 3, 47, 3),
    Sketcher.Constraint("Horizontal", 68, 3, 72, 3),
    Sketcher.Constraint("Horizontal", 66, 3, 76, 3),
    Sketcher.Constraint("Horizontal", 25, 2, 35, 1),
    Sketcher.Constraint("Horizontal", 74, 3, 62, 2),
    Sketcher.Constraint("Vertical", 38, 2, 59, 1),
    Sketcher.Constraint("Equal", 5, 32),
    Sketcher.Constraint("Radius", 63, 4.0),
    Sketcher.Constraint("Radius", 66, 1.0),
    Sketcher.Constraint("Radius", 14, 0.5),
    Sketcher.Constraint("DistanceX", 60, 2, 60, 1, 30.0),
    Sketcher.Constraint("Radius", 0, 0.75),
    Sketcher.Constraint("Radius", 4, 3.75),
    Sketcher.Constraint("Distance", 15, 2.0),
    Sketcher.Constraint("DistanceX", 63, 3, -1, 1, 25.0),
    Sketcher.Constraint("Radius", 59, 15.6378),
    Sketcher.Constraint("Radius", 12, 18.336843),
    Sketcher.Constraint("DistanceX", 1, 1, 1, 2, 1.126848),
    Sketcher.Constraint("DistanceX", 5, 1, 5, 2, 2.226831),
    Sketcher.Constraint("DistanceY", 3, 2, 3, 1, 6.795871),
    Sketcher.Constraint("DistanceY", 11, 1, 11, 2, 23.297541),
    Sketcher.Constraint("DistanceY", 62, 1, 62, 2, 12.576025),
    Sketcher.Constraint("DistanceY", 0, 3, -1, 1, 19.52377),
    Sketcher.Constraint("DistanceX", 12, 3, -1, 1, 0.282241),
    Sketcher.Constraint("DistanceX", 59, 3, -1, 1, 0.303912),
    Sketcher.Constraint("DistanceY", -1, 1, 59, 3, 6.559571),
    Sketcher.Constraint("DistanceY", -1, 1, 63, 3, 4.27377),
    Sketcher.Constraint("DistanceX", -1, 1, 12, 2, 8.790068),
    Sketcher.Constraint("DistanceY", -1, 1, 14, 2, 29.230669),
    Sketcher.Constraint("DistanceY", -1, 1, 15, 2, 30.38515),
])
pocket2 = doc.addObject("PartDesign::Pocket", "Pocket001")
body.addObject(pocket2)
pocket2.Profile = sketch3
pocket2.Length = 2

# Sketch on XY plane
sketch4 = doc.addObject("Sketcher::SketchObject", "Sketch003")
body.addObject(sketch4)
sketch4.AttachmentSupport = (doc.XY_Plane, [""])
sketch4.MapMode = "FlatFace"
sketch4.AttachmentOffset = App.Placement(App.Vector(0, 0, 6), App.Rotation())
sketch4.addGeometry([
    Part.Circle(App.Vector(-7.5, 16, 0), App.Vector(0, 0, 1), 1.5),
    Part.Circle(App.Vector(7.5, 16, 0), App.Vector(0, 0, 1), 1.5),
], False)
sketch4.addConstraint([
    Sketcher.Constraint("Equal", 0, 1),
    Sketcher.Constraint("Symmetric", 0, 3, 1, 3, -2),
    Sketcher.Constraint("Diameter", 0, 3.0),
    Sketcher.Constraint("DistanceX", 0, 3, 1, 3, 15.0),
    Sketcher.Constraint("DistanceY", -1, 1, 0, 3, 16.026077),
])
pocket3 = doc.addObject("PartDesign::Pocket", "Pocket002")
body.addObject(pocket3)
pocket3.Profile = sketch4
pocket3.Length = 2

doc.recompute()
